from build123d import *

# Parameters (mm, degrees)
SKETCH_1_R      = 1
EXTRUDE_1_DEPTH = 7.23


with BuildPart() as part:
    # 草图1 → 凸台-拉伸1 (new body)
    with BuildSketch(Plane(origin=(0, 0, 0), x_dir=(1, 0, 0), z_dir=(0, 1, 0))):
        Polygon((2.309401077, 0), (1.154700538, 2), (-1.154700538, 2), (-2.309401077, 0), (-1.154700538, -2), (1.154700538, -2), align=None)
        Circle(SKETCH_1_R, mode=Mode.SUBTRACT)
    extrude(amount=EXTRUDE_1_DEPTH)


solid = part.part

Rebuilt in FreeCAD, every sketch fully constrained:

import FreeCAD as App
import Part
import Sketcher

V = App.Vector
Q = App.Units.Quantity

doc = App.newDocument("Part")
body = doc.addObject("PartDesign::Body", "Body")

# Sketch on XZ plane
sketch1 = doc.addObject("Sketcher::SketchObject", "Sketch")
body.addObject(sketch1)
sketch1.AttachmentSupport = (doc.XZ_Plane, [""])
sketch1.MapMode = "FlatFace"
sketch1.addGeometry(Part.LineSegment(V(2.3, 0, 0), V(1.2, -2, 0)), False)
sketch1.addGeometry(Part.LineSegment(V(1.2, -2, 0), V(-1.2, -2, 0)), False)
sketch1.addGeometry(Part.LineSegment(V(-1.2, -2, 0), V(-2.3, 0, 0)), False)
sketch1.addGeometry(Part.LineSegment(V(-2.3, 0, 0), V(-1.2, 2, 0)), False)
sketch1.addGeometry(Part.LineSegment(V(-1.2, 2, 0), V(1.2, 2, 0)), False)
sketch1.addGeometry(Part.LineSegment(V(1.2, 2, 0), V(2.3, 0, 0)), False)
sketch1.addGeometry(Part.Circle(V(0, 0, 0), V(0, 0, 1), 1), False)
sketch1.addConstraint(Sketcher.Constraint("Coincident", 0, 2, 1, 1))
sketch1.addConstraint(Sketcher.Constraint("Coincident", 1, 2, 2, 1))
sketch1.addConstraint(Sketcher.Constraint("Coincident", 2, 2, 3, 1))
sketch1.addConstraint(Sketcher.Constraint("Coincident", 3, 2, 4, 1))
sketch1.addConstraint(Sketcher.Constraint("Coincident", 4, 2, 5, 1))
sketch1.addConstraint(Sketcher.Constraint("Coincident", 5, 2, 0, 1))
sketch1.addConstraint(Sketcher.Constraint("Horizontal", 1))
sketch1.addConstraint(Sketcher.Constraint("Horizontal", 4))
sketch1.addConstraint(Sketcher.Constraint("Coincident", 6, 3, -1, 1))
sketch1.addConstraint(Sketcher.Constraint("Symmetric", 0, 2, 3, 2, -1, 1))
sketch1.addConstraint(Sketcher.Constraint("Symmetric", 2, 2, 5, 2, -1, 1))
sketch1.addConstraint(Sketcher.Constraint("PointOnObject", 2, 2, -1))
sketch1.addConstraint(Sketcher.Constraint("Parallel", 2, 5))
sketch1.addConstraint(Sketcher.Constraint("Vertical", 1, 2, 3, 2))
sketch1.addConstraint(Sketcher.Constraint("Diameter", 6, 2.0))
sketch1.addConstraint(Sketcher.Constraint("Angle", 0, Q("-120 deg")))
sketch1.addConstraint(Sketcher.Constraint("DistanceY", 0, 2, -1, 1, 2.0))
sketch1.addConstraint(Sketcher.Constraint("DistanceX", 1, 2, 1, 1, 2.309401))
pad1 = doc.addObject("PartDesign::Pad", "Pad")
body.addObject(pad1)
pad1.Profile = sketch1
pad1.Length = 7.23
pad1.Reversed = True

doc.recompute()
